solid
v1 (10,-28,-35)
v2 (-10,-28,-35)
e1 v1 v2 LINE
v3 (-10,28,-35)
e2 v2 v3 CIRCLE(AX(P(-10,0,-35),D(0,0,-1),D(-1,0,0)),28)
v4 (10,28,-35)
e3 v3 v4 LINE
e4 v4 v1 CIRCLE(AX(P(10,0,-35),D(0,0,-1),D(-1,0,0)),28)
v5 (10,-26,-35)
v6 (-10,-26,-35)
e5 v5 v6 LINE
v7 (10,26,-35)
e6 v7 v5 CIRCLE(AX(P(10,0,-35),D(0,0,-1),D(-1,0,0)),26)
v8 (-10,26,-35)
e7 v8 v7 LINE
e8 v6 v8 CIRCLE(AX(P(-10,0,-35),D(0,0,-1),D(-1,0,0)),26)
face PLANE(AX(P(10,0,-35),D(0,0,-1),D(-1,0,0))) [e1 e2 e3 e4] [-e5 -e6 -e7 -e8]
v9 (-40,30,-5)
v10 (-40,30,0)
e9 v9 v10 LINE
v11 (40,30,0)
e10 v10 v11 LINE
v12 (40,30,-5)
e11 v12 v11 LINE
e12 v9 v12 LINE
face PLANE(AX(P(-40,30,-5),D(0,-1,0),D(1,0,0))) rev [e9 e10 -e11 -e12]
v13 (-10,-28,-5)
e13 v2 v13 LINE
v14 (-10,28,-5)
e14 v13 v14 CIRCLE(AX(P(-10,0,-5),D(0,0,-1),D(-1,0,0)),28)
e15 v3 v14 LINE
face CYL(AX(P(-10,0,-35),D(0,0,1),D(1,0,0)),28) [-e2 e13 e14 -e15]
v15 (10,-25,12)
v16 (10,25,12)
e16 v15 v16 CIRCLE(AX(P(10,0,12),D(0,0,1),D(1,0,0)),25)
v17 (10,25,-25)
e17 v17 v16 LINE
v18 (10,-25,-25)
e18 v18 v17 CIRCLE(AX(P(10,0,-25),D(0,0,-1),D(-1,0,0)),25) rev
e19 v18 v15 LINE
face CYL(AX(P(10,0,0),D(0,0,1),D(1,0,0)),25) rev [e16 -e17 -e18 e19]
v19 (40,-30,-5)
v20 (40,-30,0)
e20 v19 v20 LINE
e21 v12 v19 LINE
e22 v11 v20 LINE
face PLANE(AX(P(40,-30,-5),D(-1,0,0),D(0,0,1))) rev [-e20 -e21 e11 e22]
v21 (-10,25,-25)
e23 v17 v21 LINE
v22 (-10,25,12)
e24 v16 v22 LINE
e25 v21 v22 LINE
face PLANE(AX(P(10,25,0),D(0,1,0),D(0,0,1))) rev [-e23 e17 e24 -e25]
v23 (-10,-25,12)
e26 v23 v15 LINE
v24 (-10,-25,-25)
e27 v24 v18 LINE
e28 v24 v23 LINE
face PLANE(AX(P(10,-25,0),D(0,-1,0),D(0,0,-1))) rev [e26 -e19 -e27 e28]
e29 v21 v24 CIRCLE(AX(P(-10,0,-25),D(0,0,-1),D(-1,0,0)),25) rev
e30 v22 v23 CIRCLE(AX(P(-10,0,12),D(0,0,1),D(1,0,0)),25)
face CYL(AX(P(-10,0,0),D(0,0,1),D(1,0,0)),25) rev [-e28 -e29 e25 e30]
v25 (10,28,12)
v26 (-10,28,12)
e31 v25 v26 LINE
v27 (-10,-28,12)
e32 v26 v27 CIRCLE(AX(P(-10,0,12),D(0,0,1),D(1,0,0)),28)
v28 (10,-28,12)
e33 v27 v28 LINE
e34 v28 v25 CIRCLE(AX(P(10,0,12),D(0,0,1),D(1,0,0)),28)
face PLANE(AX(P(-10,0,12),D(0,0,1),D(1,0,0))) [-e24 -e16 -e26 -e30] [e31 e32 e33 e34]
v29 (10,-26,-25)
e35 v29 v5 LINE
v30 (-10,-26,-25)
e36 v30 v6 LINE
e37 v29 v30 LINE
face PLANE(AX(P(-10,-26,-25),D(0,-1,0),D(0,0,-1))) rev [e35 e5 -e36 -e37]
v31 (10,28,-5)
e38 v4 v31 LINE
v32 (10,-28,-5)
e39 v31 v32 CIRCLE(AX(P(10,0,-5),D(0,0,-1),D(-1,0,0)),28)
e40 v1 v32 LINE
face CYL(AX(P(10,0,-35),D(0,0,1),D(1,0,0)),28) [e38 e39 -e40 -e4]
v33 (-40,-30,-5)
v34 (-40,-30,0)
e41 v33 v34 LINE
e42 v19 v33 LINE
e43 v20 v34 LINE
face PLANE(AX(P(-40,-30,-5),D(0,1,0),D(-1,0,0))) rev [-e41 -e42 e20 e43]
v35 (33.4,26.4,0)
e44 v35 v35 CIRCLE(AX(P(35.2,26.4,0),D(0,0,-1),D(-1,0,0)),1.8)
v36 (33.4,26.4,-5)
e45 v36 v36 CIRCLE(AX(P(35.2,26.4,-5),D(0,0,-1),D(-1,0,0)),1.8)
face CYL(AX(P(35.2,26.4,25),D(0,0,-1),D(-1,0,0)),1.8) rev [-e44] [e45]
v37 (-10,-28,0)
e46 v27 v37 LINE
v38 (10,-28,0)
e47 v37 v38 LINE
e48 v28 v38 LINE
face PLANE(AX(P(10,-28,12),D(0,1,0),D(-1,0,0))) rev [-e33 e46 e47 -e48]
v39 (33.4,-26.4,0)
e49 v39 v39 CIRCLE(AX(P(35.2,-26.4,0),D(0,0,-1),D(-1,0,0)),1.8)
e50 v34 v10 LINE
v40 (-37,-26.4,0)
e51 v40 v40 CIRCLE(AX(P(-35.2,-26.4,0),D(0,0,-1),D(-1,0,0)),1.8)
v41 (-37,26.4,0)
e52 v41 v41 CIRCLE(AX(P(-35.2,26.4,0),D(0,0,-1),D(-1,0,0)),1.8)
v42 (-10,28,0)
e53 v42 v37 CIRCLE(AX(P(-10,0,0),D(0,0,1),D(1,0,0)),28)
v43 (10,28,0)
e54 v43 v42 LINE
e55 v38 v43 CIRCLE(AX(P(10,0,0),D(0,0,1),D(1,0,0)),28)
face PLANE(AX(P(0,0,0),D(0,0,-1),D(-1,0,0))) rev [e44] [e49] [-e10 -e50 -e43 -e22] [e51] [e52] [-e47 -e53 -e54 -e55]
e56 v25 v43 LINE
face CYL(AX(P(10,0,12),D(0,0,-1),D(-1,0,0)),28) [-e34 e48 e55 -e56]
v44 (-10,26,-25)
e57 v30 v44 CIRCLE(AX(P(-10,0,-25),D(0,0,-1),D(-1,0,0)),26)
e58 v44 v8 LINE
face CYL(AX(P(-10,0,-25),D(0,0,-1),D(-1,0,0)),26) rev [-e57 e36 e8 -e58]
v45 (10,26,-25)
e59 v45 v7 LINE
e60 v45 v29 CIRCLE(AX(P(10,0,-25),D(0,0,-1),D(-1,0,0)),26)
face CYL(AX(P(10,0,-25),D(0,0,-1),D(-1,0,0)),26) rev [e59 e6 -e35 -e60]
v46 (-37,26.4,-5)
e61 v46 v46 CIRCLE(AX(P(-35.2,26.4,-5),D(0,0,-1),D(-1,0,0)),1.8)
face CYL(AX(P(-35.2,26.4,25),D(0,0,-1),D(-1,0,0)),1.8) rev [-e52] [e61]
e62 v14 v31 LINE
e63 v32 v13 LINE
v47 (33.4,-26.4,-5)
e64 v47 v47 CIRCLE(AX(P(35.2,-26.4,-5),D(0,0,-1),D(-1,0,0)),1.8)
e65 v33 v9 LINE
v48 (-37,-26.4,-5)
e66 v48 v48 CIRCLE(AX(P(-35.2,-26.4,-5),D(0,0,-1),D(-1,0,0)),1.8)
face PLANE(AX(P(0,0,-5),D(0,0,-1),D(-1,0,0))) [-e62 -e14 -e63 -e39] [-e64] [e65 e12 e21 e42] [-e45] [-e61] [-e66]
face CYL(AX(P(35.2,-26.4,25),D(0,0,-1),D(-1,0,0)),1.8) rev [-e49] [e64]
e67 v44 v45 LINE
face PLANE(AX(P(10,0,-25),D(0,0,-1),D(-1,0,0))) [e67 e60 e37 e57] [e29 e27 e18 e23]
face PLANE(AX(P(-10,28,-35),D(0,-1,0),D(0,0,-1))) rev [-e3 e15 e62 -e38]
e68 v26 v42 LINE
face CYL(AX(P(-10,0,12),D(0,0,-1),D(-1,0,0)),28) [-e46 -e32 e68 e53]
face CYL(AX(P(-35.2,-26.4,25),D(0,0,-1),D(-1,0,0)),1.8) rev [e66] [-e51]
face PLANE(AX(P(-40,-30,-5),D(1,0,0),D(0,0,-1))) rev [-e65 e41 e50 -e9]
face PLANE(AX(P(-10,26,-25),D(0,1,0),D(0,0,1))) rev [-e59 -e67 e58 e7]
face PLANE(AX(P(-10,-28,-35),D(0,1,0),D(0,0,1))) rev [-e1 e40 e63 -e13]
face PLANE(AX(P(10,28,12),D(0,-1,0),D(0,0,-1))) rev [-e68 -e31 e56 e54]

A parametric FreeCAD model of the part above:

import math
import FreeCAD as App
import Part
import Sketcher

V = App.Vector
Q = App.Units.Quantity


def add_polygon(sketch, points):
    """Adds a closed chain of lines whose ends are joined by coincident constraints."""
    first, n = sketch.GeometryCount, len(points)
    for a, b in zip(points, points[1:] + points[:1]):
        sketch.addGeometry(Part.LineSegment(App.Vector(*a, 0), App.Vector(*b, 0)), False)
    for i in range(n):
        sketch.addConstraint(Sketcher.Constraint("Coincident", first + i, 2, first + (i + 1) % n, 1))

doc = App.newDocument("Part")
body = doc.addObject("PartDesign::Body", "Body")

# Sketch on XY plane
sketch1 = body.newObject("Sketcher::SketchObject", "Sketch")
sketch1.AttachmentSupport = (doc.getObject("XY_Plane"), [""])
sketch1.MapMode = "FlatFace"
sketch1.addGeometry([
    Part.LineSegment(V(-10, -28, 0), V(10, -28, 0)),
    Part.ArcOfCircle(Part.Circle(V(10, 0, 0), V(0, 0, 1), 28), math.radians(-90), math.radians(90)),
    Part.LineSegment(V(10, 28, 0), V(-10, 28, 0)),
    Part.ArcOfCircle(Part.Circle(V(-10, 0, 0), V(0, 0, 1), 28), math.radians(90), math.radians(270)),
], False)
sketch1.addConstraint([
    Sketcher.Constraint("Tangent", 0, 2, 1, 1),
    Sketcher.Constraint("Tangent", 1, 2, 2, 1),
    Sketcher.Constraint("Tangent", 2, 2, 3, 1),
    Sketcher.Constraint("Tangent", 3, 2, 0, 1),
    Sketcher.Constraint("Horizontal", 0),
    Sketcher.Constraint("Horizontal", 2),
    Sketcher.Constraint("Symmetric", 1, 3, 3, 3, -1, 1),
    Sketcher.Constraint("Radius", 1, Q("28 mm")),
    Sketcher.Constraint("DistanceX", 0, 1, 0, 2, Q("20 mm")),
])
pad1 = body.newObject("PartDesign::Pad", "Pad")
pad1.Profile = sketch1
pad1.Length = 12

# Sketch on XY plane
sketch2 = body.newObject("Sketcher::SketchObject", "Sketch001")
sketch2.AttachmentSupport = (doc.getObject("XY_Plane"), [""])
sketch2.MapMode = "FlatFace"
sketch2.AttachmentOffset = App.Placement(V(0, 0, 12), App.Rotation())
sketch2.addGeometry([
    Part.LineSegment(V(-10, -25, 0), V(10, -25, 0)),
    Part.ArcOfCircle(Part.Circle(V(10, 0, 0), V(0, 0, 1), 25), math.radians(-90), math.radians(90)),
    Part.LineSegment(V(10, 25, 0), V(-10, 25, 0)),
    Part.ArcOfCircle(Part.Circle(V(-10, 0, 0), V(0, 0, 1), 25), math.radians(90), math.radians(270)),
], False)
sketch2.addConstraint([
    Sketcher.Constraint("Tangent", 0, 2, 1, 1),
    Sketcher.Constraint("Tangent", 1, 2, 2, 1),
    Sketcher.Constraint("Tangent", 2, 2, 3, 1),
    Sketcher.Constraint("Tangent", 3, 2, 0, 1),
    Sketcher.Constraint("Horizontal", 0),
    Sketcher.Constraint("Horizontal", 2),
    Sketcher.Constraint("Symmetric", 1, 3, 3, 3, -1, 1),
    Sketcher.Constraint("Radius", 1, Q("25 mm")),
    Sketcher.Constraint("DistanceX", 0, 1, 0, 2, Q("20 mm")),
])
pocket1 = body.newObject("PartDesign::Pocket", "Pocket")
pocket1.Profile = sketch2
pocket1.Length = 12

# Sketch on XY plane
sketch3 = body.newObject("Sketcher::SketchObject", "Sketch002")
sketch3.AttachmentSupport = (doc.getObject("XY_Plane"), [""])
sketch3.MapMode = "FlatFace"
add_polygon(sketch3, [(40, 30), (40, -30), (-40, -30), (-40, 30)])  # lines 0-3
sketch3.addGeometry(Part.ArcOfCircle(Part.Circle(V(-10, 0, 0), V(0, 0, 1), 25), math.radians(90), math.radians(270)), False)  # 4
sketch3.addGeometry(Part.LineSegment(V(-10, -25, 0), V(10, -25, 0)), False)  # 5
sketch3.addGeometry(Part.ArcOfCircle(Part.Circle(V(10, 0, 0), V(0, 0, 1), 25), math.radians(-90), math.radians(90)), False)  # 6
sketch3.addGeometry(Part.LineSegment(V(10, 25, 0), V(-10, 25, 0)), False)  # 7
sketch3.addConstraint([
    Sketcher.Constraint("Tangent", 4, 2, 5, 1),
    Sketcher.Constraint("Tangent", 5, 2, 6, 1),
    Sketcher.Constraint("Tangent", 6, 2, 7, 1),
    Sketcher.Constraint("Tangent", 7, 2, 4, 1),
    Sketcher.Constraint("Vertical", 0),
    Sketcher.Constraint("Horizontal", 1),
    Sketcher.Constraint("Vertical", 2),
    Sketcher.Constraint("Horizontal", 3),
    Sketcher.Constraint("Horizontal", 5),
    Sketcher.Constraint("Horizontal", 7),
    Sketcher.Constraint("Symmetric", 4, 3, 6, 3, -1, 1),
    Sketcher.Constraint("Symmetric", 0, 2, 2, 2, -1, 1),
    Sketcher.Constraint("Radius", 4, Q("25 mm")),
    Sketcher.Constraint("DistanceX", 1, 2, 1, 1, Q("80 mm")),
    Sketcher.Constraint("DistanceX", 5, 1, 5, 2, Q("20 mm")),
    Sketcher.Constraint("DistanceY", 0, 2, 0, 1, Q("60 mm")),
])
pad2 = body.newObject("PartDesign::Pad", "Pad001")
pad2.Profile = sketch3
pad2.Length = 5
pad2.Reversed = True

# Sketch on XY plane
sketch4 = body.newObject("Sketcher::SketchObject", "Sketch003")
sketch4.AttachmentSupport = (doc.getObject("XY_Plane"), [""])
sketch4.MapMode = "FlatFace"
sketch4.AttachmentOffset = App.Placement(V(0, 0, -5), App.Rotation())
sketch4.addGeometry([
    Part.LineSegment(V(10, -28, 0), V(-10, -28, 0)),  # 0
    Part.ArcOfCircle(Part.Circle(V(-10, 0, 0), V(0, 0, 1), 28), math.radians(90), math.radians(270)),  # 1
    Part.LineSegment(V(-10, 28, 0), V(10, 28, 0)),  # 2
    Part.ArcOfCircle(Part.Circle(V(10, 0, 0), V(0, 0, 1), 28), math.radians(-90), math.radians(90)),  # 3
    Part.LineSegment(V(-10, -25, 0), V(10, -25, 0)),  # 4
    Part.ArcOfCircle(Part.Circle(V(10, 0, 0), V(0, 0, 1), 25), math.radians(-90), math.radians(90)),  # 5
    Part.LineSegment(V(10, 25, 0), V(-10, 25, 0)),  # 6
    Part.ArcOfCircle(Part.Circle(V(-10, 0, 0), V(0, 0, 1), 25), math.radians(90), math.radians(270)),  # 7
], False)
sketch4.addConstraint([
    Sketcher.Constraint("Tangent", 0, 2, 1, 2),
    Sketcher.Constraint("Tangent", 1, 1, 2, 1),
    Sketcher.Constraint("Tangent", 2, 2, 3, 2),
    Sketcher.Constraint("Tangent", 3, 1, 0, 1),
    Sketcher.Constraint("Tangent", 4, 2, 5, 1),
    Sketcher.Constraint("Tangent", 5, 2, 6, 1),
    Sketcher.Constraint("Tangent", 6, 2, 7, 1),
    Sketcher.Constraint("Tangent", 7, 2, 4, 1),
    Sketcher.Constraint("Horizontal", 0),
    Sketcher.Constraint("Horizontal", 2),
    Sketcher.Constraint("Horizontal", 4),
    Sketcher.Constraint("Horizontal", 6),
    Sketcher.Constraint("Coincident", 5, 3, 3, 3),
    Sketcher.Constraint("Symmetric", 1, 3, 3, 3, -1, 1),
    Sketcher.Constraint("Vertical", 7, 3, 0, 2),
    Sketcher.Constraint("Radius", 1, Q("28 mm")),
    Sketcher.Constraint("Radius", 5, Q("25 mm")),
    Sketcher.Constraint("DistanceX", 0, 2, 0, 1, Q("20 mm")),
])
pad3 = body.newObject("PartDesign::Pad", "Pad002")
pad3.Profile = sketch4
pad3.Length = 30
pad3.Reversed = True

# Sketch on XY plane
sketch5 = body.newObject("Sketcher::SketchObject", "Sketch004")
sketch5.AttachmentSupport = (doc.getObject("XY_Plane"), [""])
sketch5.MapMode = "FlatFace"
sketch5.AttachmentOffset = App.Placement(V(0, 0, -5), App.Rotation())
sketch5.addGeometry([
    Part.Circle(V(35.2, 26.4, 0), V(0, 0, 1), 1.8),
    Part.Circle(V(-35.2, 26.4, 0), V(0, 0, 1), 1.8),
    Part.Circle(V(-35.2, -26.4, 0), V(0, 0, 1), 1.8),
    Part.Circle(V(35.2, -26.4, 0), V(0, 0, 1), 1.8),
], False)
sketch5.addConstraint([
    Sketcher.Constraint("Equal", 0, 1),
    Sketcher.Constraint("Equal", 1, 2),
    Sketcher.Constraint("Equal", 2, 3),
    Sketcher.Constraint("Symmetric", 0, 3, 2, 3, -1, 1),
    Sketcher.Constraint("Symmetric", 1, 3, 3, 3, -1, 1),
    Sketcher.Constraint("Symmetric", 0, 3, 1, 3, -2),
    Sketcher.Constraint("Diameter", 0, Q("3.6 mm")),
    Sketcher.Constraint("DistanceX", -1, 1, 0, 3, Q("35.2 mm")),
    Sketcher.Constraint("DistanceY", -1, 1, 0, 3, Q("26.4 mm")),
])
pocket2 = body.newObject("PartDesign::Pocket", "Pocket001")
pocket2.Profile = sketch5
pocket2.Length = 30
pocket2.Reversed = True

# Sketch on XY plane
sketch6 = body.newObject("Sketcher::SketchObject", "Sketch005")
sketch6.AttachmentSupport = (doc.getObject("XY_Plane"), [""])
sketch6.MapMode = "FlatFace"
sketch6.AttachmentOffset = App.Placement(V(0, 0, -35), App.Rotation())
sketch6.addGeometry([
    Part.LineSegment(V(10, -26, 0), V(-10, -26, 0)),
    Part.ArcOfCircle(Part.Circle(V(-10, 0, 0), V(0, 0, 1), 26), math.radians(90), math.radians(270)),
    Part.LineSegment(V(-10, 26, 0), V(10, 26, 0)),
    Part.ArcOfCircle(Part.Circle(V(10, 0, 0), V(0, 0, 1), 26), math.radians(-90), math.radians(90)),
], False)
sketch6.addConstraint([
    Sketcher.Constraint("Tangent", 0, 2, 1, 2),
    Sketcher.Constraint("Tangent", 1, 1, 2, 1),
    Sketcher.Constraint("Tangent", 2, 2, 3, 2),
    Sketcher.Constraint("Tangent", 3, 1, 0, 1),
    Sketcher.Constraint("Horizontal", 0),
    Sketcher.Constraint("Horizontal", 2),
    Sketcher.Constraint("Symmetric", 1, 3, 3, 3, -1, 1),
    Sketcher.Constraint("Radius", 1, Q("26 mm")),
    Sketcher.Constraint("DistanceX", 0, 2, 0, 1, Q("20 mm")),
])
pocket3 = body.newObject("PartDesign::Pocket", "Pocket002")
pocket3.Profile = sketch6
pocket3.Length = 10
pocket3.Reversed = True

doc.recompute()
